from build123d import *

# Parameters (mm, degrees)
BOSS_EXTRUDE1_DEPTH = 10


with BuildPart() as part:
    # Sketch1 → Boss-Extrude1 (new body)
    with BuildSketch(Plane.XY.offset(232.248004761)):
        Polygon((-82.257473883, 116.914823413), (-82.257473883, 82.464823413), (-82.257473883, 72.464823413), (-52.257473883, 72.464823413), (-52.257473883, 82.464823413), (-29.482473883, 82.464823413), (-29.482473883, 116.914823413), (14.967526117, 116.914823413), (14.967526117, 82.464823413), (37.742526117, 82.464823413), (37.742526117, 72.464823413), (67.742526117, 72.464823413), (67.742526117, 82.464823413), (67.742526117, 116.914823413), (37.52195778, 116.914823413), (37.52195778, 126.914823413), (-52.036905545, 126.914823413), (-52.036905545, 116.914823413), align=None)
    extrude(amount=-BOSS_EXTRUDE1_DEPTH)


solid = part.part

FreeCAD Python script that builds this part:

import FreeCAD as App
import Part
import Sketcher
Q = App.Units.Quantity


def add_polygon(sketch, points):
    """Adds a closed chain of lines whose ends are joined by coincident constraints."""
    first, n = sketch.GeometryCount, len(points)
    for a, b in zip(points, points[1:] + points[:1]):
        sketch.addGeometry(Part.LineSegment(App.Vector(*a, 0), App.Vector(*b, 0)), False)
    for i in range(n):
        sketch.addConstraint(Sketcher.Constraint("Coincident", first + i, 2, first + (i + 1) % n, 1))

doc = App.newDocument("Part")
body = doc.addObject("PartDesign::Body", "Body")

# Sketch on XY plane
sketch1 = doc.addObject("Sketcher::SketchObject", "Sketch")
body.addObject(sketch1)
sketch1.AttachmentSupport = (doc.XY_Plane, [""])
sketch1.MapMode = "FlatFace"
sketch1.AttachmentOffset = App.Placement(App.Vector(0, 0, 232.248005), App.Rotation())
add_polygon(sketch1, [(-82, 117), (-82, 72), (-52, 72), (-52, 82), (-29, 82), (-29, 117), (15, 117), (15, 82), (38, 82), (38, 72), (68, 72), (68, 117), (38, 117), (38, 127), (-52, 127), (-52, 117)])  # lines 0-15
sketch1.addConstraint([
    Sketcher.Constraint("Vertical", 0),
    Sketcher.Constraint("Horizontal", 1),
    Sketcher.Constraint("Vertical", 2),
    Sketcher.Constraint("Horizontal", 3),
    Sketcher.Constraint("Vertical", 4),
    Sketcher.Constraint("Horizontal", 5),
    Sketcher.Constraint("Vertical", 6),
    Sketcher.Constraint("Horizontal", 7),
    Sketcher.Constraint("Vertical", 8),
    Sketcher.Constraint("Horizontal", 9),
    Sketcher.Constraint("Vertical", 10),
    Sketcher.Constraint("Horizontal", 11),
    Sketcher.Constraint("Vertical", 12),
    Sketcher.Constraint("Horizontal", 13),
    Sketcher.Constraint("Vertical", 14),
    Sketcher.Constraint("Horizontal", 15),
    Sketcher.Constraint("Horizontal", 3, 2, 6, 2),
    Sketcher.Constraint("Horizontal", 1, 2, 8, 2),
    Sketcher.Constraint("Horizontal", 5, 2, 10, 2),
    Sketcher.Constraint("Horizontal", 11, 2, 14, 2),
    Sketcher.Constraint("Equal", 3, 7),
    Sketcher.Constraint("Equal", 1, 9),
    Sketcher.Constraint("Equal", 11, 15),
    Sketcher.Constraint("Equal", 5, 0),
    Sketcher.Constraint("Equal", 8, 12),
    Sketcher.Constraint("DistanceX", 1, 1, 1, 2, Q("30 mm")),
    Sketcher.Constraint("DistanceY", 2, 1, 2, 2, Q("10 mm")),
    Sketcher.Constraint("DistanceX", 2, 2, 7, 2, Q("90 mm")),
    Sketcher.Constraint("DistanceX", 5, 1, 5, 2, Q("44.45 mm")),
    Sketcher.Constraint("DistanceX", 11, 2, 11, 1, Q("30.220568 mm")),
    Sketcher.Constraint("DistanceX", 0, 2, -1, 1, Q("82.257474 mm")),
    Sketcher.Constraint("DistanceY", -1, 1, 0, 2, Q("72.464823 mm")),
])
pad1 = doc.addObject("PartDesign::Pad", "Pad")
body.addObject(pad1)
pad1.Profile = sketch1
pad1.Length = 10
pad1.Reversed = True

doc.recompute()
